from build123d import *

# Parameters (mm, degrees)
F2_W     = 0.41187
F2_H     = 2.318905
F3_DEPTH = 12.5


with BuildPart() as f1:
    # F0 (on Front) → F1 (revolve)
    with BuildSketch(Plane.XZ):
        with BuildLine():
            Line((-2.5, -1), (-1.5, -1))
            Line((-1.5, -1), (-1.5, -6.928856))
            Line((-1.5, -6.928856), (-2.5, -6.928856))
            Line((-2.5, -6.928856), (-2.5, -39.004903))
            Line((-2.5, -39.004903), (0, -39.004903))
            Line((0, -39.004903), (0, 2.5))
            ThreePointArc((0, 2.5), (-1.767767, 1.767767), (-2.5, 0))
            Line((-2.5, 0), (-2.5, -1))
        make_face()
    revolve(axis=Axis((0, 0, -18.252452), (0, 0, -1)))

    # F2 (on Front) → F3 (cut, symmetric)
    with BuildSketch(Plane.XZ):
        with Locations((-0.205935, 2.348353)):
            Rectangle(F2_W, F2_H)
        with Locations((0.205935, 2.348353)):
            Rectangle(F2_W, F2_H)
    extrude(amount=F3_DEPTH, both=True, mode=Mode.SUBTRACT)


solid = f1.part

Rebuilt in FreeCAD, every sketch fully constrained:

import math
import FreeCAD as App
import Part
import Sketcher

V = App.Vector
Q = App.Units.Quantity


def add_polygon(sketch, points):
    """Adds a closed chain of lines whose ends are joined by coincident constraints."""
    first, n = sketch.GeometryCount, len(points)
    for a, b in zip(points, points[1:] + points[:1]):
        sketch.addGeometry(Part.LineSegment(App.Vector(*a, 0), App.Vector(*b, 0)), False)
    for i in range(n):
        sketch.addConstraint(Sketcher.Constraint("Coincident", first + i, 2, first + (i + 1) % n, 1))

doc = App.newDocument("Part")
body = doc.addObject("PartDesign::Body", "Body")

# Sketch on XZ plane
sketch1 = doc.addObject("Sketcher::SketchObject", "Sketch")
body.addObject(sketch1)
sketch1.AttachmentSupport = (doc.XZ_Plane, [""])
sketch1.MapMode = "FlatFace"
sketch1.addGeometry(Part.LineSegment(V(-2.5, -1, 0), V(-1.5, -1, 0)), False)
sketch1.addGeometry(Part.LineSegment(V(-1.5, -1, 0), V(-1.5, -6.9, 0)), False)
sketch1.addGeometry(Part.LineSegment(V(-1.5, -6.9, 0), V(-2.5, -6.9, 0)), False)
sketch1.addGeometry(Part.LineSegment(V(-2.5, -6.9, 0), V(-2.5, -39, 0)), False)
sketch1.addGeometry(Part.LineSegment(V(-2.5, -39, 0), V(0, -39, 0)), False)
sketch1.addGeometry(Part.LineSegment(V(0, -39, 0), V(0, 2.5, 0)), False)
sketch1.addGeometry(Part.ArcOfCircle(Part.Circle(V(0, 0, 0), V(0, 0, 1), 2.5), math.radians(90), math.radians(180)), False)
sketch1.addGeometry(Part.LineSegment(V(-2.5, 0, 0), V(-2.5, -1, 0)), False)
sketch1.addConstraint(Sketcher.Constraint("Coincident", 0, 2, 1, 1))
sketch1.addConstraint(Sketcher.Constraint("Coincident", 1, 2, 2, 1))
sketch1.addConstraint(Sketcher.Constraint("Coincident", 2, 2, 3, 1))
sketch1.addConstraint(Sketcher.Constraint("Coincident", 3, 2, 4, 1))
sketch1.addConstraint(Sketcher.Constraint("Coincident", 4, 2, 5, 1))
sketch1.addConstraint(Sketcher.Constraint("Coincident", 5, 2, 6, 1))
sketch1.addConstraint(Sketcher.Constraint("Tangent", 6, 2, 7, 1))
sketch1.addConstraint(Sketcher.Constraint("Coincident", 7, 2, 0, 1))
sketch1.addConstraint(Sketcher.Constraint("Horizontal", 0))
sketch1.addConstraint(Sketcher.Constraint("Vertical", 1))
sketch1.addConstraint(Sketcher.Constraint("Horizontal", 2))
sketch1.addConstraint(Sketcher.Constraint("Vertical", 3))
sketch1.addConstraint(Sketcher.Constraint("Horizontal", 4))
sketch1.addConstraint(Sketcher.Constraint("Vertical", 5))
sketch1.addConstraint(Sketcher.Constraint("Vertical", 7))
sketch1.addConstraint(Sketcher.Constraint("Coincident", 6, 3, -1, 1))
sketch1.addConstraint(Sketcher.Constraint("PointOnObject", 4, 2, -2))
sketch1.addConstraint(Sketcher.Constraint("Vertical", 3, 2, 6, 2))
sketch1.addConstraint(Sketcher.Constraint("Equal", 2, 7))
sketch1.addConstraint(Sketcher.Constraint("Radius", 6, Q("2.5 mm")))
sketch1.addConstraint(Sketcher.Constraint("DistanceX", 0, 1, 0, 2, Q("1 mm")))
sketch1.addConstraint(Sketcher.Constraint("DistanceY", 1, 2, 1, 1, Q("5.928856 mm")))
sketch1.addConstraint(Sketcher.Constraint("DistanceY", 3, 2, 3, 1, Q("32.076047 mm")))
revolution = doc.addObject("PartDesign::Revolution", "Revolution")
body.addObject(revolution)
revolution.Profile = sketch1
revolution.ReferenceAxis = (sketch1, ["V_Axis"])
revolution.Angle = 360

# Sketch on XZ plane
sketch2 = doc.addObject("Sketcher::SketchObject", "Sketch001")
body.addObject(sketch2)
sketch2.AttachmentSupport = (doc.XZ_Plane, [""])
sketch2.MapMode = "FlatFace"
add_polygon(sketch2, [(-0.4, 3.5), (-0.4, 1.2), (0.4, 1.2), (0.4, 3.5)])  # lines 0-3
sketch2.addConstraint(Sketcher.Constraint("Vertical", 0))
sketch2.addConstraint(Sketcher.Constraint("Horizontal", 1))
sketch2.addConstraint(Sketcher.Constraint("Vertical", 2))
sketch2.addConstraint(Sketcher.Constraint("Horizontal", 3))
sketch2.addConstraint(Sketcher.Constraint("DistanceX", 1, 1, 1, 2, Q("0.82374 mm")))
sketch2.addConstraint(Sketcher.Constraint("DistanceY", -1, 1, 0, 2, Q("1.1889 mm")))
sketch2.addConstraint(Sketcher.Constraint("DistanceY", 0, 2, 0, 1, Q("2.318905 mm")))
sketch2.addConstraint(Sketcher.Constraint("DistanceX", 0, 2, -1, 1, Q("0.41187 mm")))
pocket1 = doc.addObject("PartDesign::Pocket", "Pocket")
body.addObject(pocket1)
pocket1.Profile = sketch2
pocket1.Length = 25
pocket1.Midplane = True

doc.recompute()
